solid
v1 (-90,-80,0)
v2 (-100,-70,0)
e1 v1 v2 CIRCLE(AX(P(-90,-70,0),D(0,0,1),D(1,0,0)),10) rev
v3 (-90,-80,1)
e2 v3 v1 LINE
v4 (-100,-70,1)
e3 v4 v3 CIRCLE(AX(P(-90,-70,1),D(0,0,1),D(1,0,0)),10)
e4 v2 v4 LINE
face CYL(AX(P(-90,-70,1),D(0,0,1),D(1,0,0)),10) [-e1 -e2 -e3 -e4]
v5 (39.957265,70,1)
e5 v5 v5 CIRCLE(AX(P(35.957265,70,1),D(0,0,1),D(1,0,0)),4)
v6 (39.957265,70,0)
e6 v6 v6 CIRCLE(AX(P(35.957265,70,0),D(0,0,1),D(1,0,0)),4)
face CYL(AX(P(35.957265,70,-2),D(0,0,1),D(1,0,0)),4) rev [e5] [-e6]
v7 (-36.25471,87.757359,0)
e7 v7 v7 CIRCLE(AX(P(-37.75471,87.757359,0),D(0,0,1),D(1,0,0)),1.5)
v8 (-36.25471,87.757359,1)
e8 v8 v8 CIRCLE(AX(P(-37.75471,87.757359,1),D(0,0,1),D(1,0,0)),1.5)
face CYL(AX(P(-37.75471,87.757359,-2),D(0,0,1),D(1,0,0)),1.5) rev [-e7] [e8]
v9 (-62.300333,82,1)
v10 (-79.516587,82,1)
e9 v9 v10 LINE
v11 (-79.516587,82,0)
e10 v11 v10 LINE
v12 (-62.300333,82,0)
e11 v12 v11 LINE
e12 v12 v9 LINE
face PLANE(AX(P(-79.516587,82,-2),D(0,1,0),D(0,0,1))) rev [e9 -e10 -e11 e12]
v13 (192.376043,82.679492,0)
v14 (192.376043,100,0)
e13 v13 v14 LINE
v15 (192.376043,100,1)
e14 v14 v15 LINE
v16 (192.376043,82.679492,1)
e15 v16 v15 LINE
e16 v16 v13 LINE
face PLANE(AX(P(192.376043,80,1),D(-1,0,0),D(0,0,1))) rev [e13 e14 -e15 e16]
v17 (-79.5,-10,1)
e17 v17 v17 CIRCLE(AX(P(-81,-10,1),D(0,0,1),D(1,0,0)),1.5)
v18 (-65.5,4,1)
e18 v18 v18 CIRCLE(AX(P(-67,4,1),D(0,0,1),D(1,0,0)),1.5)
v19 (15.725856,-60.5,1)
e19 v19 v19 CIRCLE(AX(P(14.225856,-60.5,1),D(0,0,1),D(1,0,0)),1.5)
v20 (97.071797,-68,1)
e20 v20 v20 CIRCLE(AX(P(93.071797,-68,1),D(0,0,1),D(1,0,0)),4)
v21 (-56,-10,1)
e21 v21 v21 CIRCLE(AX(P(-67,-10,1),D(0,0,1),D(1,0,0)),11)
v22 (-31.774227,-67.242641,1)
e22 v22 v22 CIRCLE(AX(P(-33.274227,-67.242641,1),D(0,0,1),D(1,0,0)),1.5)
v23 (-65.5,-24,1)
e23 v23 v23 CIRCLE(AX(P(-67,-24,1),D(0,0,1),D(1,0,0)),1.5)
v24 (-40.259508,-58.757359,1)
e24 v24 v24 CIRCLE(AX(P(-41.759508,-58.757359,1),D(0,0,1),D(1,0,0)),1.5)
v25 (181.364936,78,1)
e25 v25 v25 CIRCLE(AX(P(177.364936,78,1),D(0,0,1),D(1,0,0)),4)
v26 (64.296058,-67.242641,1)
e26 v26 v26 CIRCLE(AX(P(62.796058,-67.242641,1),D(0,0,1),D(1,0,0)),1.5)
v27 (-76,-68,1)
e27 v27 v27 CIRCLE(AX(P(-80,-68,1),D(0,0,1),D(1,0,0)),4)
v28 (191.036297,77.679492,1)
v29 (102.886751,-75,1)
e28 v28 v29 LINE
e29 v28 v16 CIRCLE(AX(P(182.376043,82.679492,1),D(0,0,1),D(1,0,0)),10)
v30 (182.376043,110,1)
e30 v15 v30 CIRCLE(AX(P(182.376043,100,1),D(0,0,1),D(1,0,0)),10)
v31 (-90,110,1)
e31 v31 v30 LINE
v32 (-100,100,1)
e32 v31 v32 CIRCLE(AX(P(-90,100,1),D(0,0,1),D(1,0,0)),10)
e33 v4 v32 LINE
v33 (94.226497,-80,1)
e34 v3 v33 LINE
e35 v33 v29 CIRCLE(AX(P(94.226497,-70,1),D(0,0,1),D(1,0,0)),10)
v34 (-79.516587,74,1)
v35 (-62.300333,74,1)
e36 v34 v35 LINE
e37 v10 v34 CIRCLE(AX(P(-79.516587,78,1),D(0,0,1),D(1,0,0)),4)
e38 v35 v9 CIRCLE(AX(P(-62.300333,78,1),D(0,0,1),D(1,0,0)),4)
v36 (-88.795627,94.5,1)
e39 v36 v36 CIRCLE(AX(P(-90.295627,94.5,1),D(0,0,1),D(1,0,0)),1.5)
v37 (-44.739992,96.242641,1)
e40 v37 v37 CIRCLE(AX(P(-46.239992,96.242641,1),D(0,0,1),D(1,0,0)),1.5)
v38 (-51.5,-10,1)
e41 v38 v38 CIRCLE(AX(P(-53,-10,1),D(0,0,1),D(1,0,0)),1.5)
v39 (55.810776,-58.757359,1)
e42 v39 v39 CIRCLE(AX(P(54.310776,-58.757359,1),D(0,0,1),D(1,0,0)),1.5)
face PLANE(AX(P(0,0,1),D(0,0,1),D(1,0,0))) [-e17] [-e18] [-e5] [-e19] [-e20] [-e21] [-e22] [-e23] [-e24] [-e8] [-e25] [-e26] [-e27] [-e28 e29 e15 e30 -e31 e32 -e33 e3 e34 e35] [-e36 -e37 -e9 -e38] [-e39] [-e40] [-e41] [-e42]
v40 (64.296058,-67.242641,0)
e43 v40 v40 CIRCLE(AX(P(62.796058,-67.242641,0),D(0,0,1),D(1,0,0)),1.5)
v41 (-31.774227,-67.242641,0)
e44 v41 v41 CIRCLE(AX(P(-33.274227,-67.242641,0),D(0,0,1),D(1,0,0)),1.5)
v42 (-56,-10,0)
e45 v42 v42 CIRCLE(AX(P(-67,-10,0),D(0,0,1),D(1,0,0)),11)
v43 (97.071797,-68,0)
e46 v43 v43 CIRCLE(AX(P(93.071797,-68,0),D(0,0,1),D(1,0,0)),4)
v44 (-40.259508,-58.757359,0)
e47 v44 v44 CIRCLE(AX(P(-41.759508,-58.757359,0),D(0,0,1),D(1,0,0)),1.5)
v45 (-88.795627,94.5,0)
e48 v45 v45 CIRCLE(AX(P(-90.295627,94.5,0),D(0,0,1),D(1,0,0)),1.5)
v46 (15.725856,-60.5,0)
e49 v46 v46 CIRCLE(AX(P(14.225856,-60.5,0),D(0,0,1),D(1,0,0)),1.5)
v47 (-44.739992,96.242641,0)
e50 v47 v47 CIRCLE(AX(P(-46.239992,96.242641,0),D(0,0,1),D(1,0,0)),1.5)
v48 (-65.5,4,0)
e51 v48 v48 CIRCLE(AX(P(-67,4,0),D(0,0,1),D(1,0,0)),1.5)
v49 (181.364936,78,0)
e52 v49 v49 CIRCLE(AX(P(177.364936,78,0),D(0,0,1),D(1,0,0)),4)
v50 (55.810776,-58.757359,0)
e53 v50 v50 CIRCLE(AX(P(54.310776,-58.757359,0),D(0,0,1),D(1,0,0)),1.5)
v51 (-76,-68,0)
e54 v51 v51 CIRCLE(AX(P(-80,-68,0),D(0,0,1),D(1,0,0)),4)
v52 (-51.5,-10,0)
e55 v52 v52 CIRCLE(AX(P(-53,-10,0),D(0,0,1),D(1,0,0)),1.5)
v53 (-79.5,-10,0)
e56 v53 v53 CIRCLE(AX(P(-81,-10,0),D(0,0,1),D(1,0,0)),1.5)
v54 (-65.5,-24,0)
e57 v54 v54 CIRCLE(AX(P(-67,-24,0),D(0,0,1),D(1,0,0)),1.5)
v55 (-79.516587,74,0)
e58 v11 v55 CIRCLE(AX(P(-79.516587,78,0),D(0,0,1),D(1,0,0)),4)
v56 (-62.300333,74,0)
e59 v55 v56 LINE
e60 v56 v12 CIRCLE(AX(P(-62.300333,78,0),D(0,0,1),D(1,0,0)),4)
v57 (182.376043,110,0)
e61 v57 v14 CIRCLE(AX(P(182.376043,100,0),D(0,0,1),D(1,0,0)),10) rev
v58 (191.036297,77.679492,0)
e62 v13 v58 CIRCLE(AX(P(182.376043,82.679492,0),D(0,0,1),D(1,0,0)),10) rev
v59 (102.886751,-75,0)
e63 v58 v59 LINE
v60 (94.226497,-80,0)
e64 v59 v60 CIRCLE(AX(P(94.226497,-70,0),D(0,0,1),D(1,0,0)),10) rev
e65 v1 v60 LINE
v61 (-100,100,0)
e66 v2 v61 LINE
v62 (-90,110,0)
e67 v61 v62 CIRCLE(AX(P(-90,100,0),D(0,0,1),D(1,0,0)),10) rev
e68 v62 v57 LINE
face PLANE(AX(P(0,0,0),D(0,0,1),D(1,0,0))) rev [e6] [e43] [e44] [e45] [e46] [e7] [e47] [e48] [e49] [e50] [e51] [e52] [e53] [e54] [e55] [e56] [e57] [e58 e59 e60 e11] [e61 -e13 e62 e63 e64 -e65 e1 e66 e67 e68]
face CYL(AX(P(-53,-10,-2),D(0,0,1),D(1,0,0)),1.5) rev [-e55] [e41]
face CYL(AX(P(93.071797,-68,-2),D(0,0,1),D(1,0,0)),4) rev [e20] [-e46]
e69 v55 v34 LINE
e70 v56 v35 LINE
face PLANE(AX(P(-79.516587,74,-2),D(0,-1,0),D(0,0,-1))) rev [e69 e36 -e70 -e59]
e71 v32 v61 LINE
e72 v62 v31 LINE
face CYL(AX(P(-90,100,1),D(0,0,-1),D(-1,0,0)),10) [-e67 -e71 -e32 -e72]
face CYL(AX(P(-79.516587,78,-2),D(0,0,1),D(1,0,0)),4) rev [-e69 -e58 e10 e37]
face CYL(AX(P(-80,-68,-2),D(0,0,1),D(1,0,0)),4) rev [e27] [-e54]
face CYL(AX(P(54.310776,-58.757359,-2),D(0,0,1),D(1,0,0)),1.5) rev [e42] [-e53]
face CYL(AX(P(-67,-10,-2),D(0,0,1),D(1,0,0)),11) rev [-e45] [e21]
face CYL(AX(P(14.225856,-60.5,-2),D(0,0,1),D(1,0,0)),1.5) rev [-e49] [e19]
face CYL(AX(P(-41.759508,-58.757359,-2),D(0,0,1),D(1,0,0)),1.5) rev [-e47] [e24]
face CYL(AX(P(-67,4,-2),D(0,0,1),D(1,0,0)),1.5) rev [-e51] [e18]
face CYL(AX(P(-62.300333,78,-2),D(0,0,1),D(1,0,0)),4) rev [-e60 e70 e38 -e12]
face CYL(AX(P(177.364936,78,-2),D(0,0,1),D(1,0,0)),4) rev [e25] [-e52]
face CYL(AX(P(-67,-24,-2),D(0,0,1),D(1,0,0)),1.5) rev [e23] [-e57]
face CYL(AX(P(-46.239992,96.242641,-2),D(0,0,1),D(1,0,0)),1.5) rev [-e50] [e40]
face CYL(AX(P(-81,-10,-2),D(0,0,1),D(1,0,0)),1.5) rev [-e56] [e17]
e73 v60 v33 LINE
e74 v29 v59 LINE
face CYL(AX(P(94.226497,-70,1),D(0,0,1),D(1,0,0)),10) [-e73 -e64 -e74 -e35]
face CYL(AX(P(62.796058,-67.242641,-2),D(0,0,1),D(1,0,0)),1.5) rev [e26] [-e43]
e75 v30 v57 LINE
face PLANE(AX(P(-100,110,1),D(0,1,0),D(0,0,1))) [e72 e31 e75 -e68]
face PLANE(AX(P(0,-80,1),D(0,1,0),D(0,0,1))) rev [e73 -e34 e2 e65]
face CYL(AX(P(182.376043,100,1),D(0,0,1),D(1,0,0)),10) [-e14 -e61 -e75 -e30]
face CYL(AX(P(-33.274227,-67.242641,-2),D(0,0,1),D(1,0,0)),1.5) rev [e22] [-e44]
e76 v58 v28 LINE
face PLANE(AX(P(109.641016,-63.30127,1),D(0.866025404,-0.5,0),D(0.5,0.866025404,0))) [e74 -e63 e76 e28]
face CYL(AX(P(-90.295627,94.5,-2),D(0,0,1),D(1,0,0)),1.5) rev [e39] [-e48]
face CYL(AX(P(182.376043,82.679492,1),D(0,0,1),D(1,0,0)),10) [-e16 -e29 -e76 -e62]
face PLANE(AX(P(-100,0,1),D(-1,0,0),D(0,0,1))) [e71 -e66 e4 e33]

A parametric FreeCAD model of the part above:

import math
import FreeCAD as App
import Part
import Sketcher
Q = App.Units.Quantity


def edges_at(feature, points):
    """Names of the edges that pass closest to the given points."""
    edges = feature.Shape.Edges
    near = lambda p: min(range(len(edges)), key=lambda i: edges[i].distToShape(Part.Vertex(*p))[0])
    return sorted({f"Edge{near(p) + 1}" for p in points})

doc = App.newDocument("Part")
body = doc.addObject("PartDesign::Body", "Body")

# Sketch on XY plane
sketch1 = doc.addObject("Sketcher::SketchObject", "Sketch")
body.addObject(sketch1)
sketch1.AttachmentSupport = (doc.XY_Plane, [""])
sketch1.MapMode = "FlatFace"
sketch1.addGeometry([
    Part.LineSegment(App.Vector(-100, -80, 0), App.Vector(100, -80, 0)),  # 0
    Part.LineSegment(App.Vector(100, -80, 0), App.Vector(192, 80, 0)),  # 1
    Part.LineSegment(App.Vector(192, 80, 0), App.Vector(192, 110, 0)),  # 2
    Part.LineSegment(App.Vector(192, 110, 0), App.Vector(-100, 110, 0)),  # 3
    Part.LineSegment(App.Vector(-100, 110, 0), App.Vector(-100, -80, 0)),  # 4
], False)
sketch1.addConstraint([
    Sketcher.Constraint("Coincident", 0, 2, 1, 1),
    Sketcher.Constraint("Coincident", 1, 2, 2, 1),
    Sketcher.Constraint("Coincident", 2, 2, 3, 1),
    Sketcher.Constraint("Coincident", 3, 2, 4, 1),
    Sketcher.Constraint("Coincident", 4, 2, 0, 1),
    Sketcher.Constraint("Horizontal", 0),
    Sketcher.Constraint("Vertical", 2),
    Sketcher.Constraint("Horizontal", 3),
    Sketcher.Constraint("Vertical", 4),
    Sketcher.Constraint("DistanceX", 0, 1, 0, 2, Q("200 mm")),
    Sketcher.Constraint("DistanceY", 2, 1, 2, 2, Q("30 mm")),
    Sketcher.Constraint("DistanceY", 4, 2, 4, 1, Q("190 mm")),
    Sketcher.Constraint("Angle", 1, Q("60 deg")),
    Sketcher.Constraint("DistanceX", -1, 1, 0, 2, Q("100 mm")),
    Sketcher.Constraint("DistanceY", 0, 2, -1, 1, Q("80 mm")),
])
pad1 = doc.addObject("PartDesign::Pad", "Pad")
body.addObject(pad1)
pad1.Profile = sketch1
pad1.Length = 1
doc.recompute()

fillet = doc.addObject("PartDesign::Fillet", "Fillet")
body.addObject(fillet)
fillet.Base = (pad1, edges_at(pad1, [
    (-100, 110, 0.5),
    (192.376, 110, 0.5),
    (-100, -80, 0.5),
    (192.376, 80, 0.5),
    (100, -80, 0.5),
]))
fillet.Radius = 10

# Sketch on XY plane
sketch2 = doc.addObject("Sketcher::SketchObject", "Sketch001")
body.addObject(sketch2)
sketch2.AttachmentSupport = (doc.XY_Plane, [""])
sketch2.MapMode = "FlatFace"
sketch2.AttachmentOffset = App.Placement(App.Vector(0, 0, 1), App.Rotation())
sketch2.addGeometry([
    Part.Circle(App.Vector(93.1, -68, 0), App.Vector(0, 0, 1), 4),  # 0
    Part.Circle(App.Vector(177.4, 78, 0), App.Vector(0, 0, 1), 4),  # 1
    Part.Circle(App.Vector(-67, -10, 0), App.Vector(0, 0, 1), 11),  # 2
    Part.Circle(App.Vector(-80, -68, 0), App.Vector(0, 0, 1), 4),  # 3
    Part.Circle(App.Vector(-53, -10, 0), App.Vector(0, 0, 1), 1.5),  # 4
    Part.Circle(App.Vector(-67, 4, 0), App.Vector(0, 0, 1), 1.5),  # 5
    Part.Circle(App.Vector(-81, -10, 0), App.Vector(0, 0, 1), 1.5),  # 6
    Part.Circle(App.Vector(-67, -24, 0), App.Vector(0, 0, 1), 1.5),  # 7
    Part.Circle(App.Vector(36, 70, 0), App.Vector(0, 0, 1), 4),  # 8
    Part.Circle(App.Vector(62.8, -67.2, 0), App.Vector(0, 0, 1), 1.5),  # 9
    Part.Circle(App.Vector(54.3, -58.8, 0), App.Vector(0, 0, 1), 1.5),  # 10
    Part.Circle(App.Vector(-33.3, -67.2, 0), App.Vector(0, 0, 1), 1.5),  # 11
    Part.Circle(App.Vector(-41.8, -58.8, 0), App.Vector(0, 0, 1), 1.5),  # 12
    Part.Circle(App.Vector(14.2, -60.5, 0), App.Vector(0, 0, 1), 1.5),  # 13
    Part.Circle(App.Vector(-37.8, 87.8, 0), App.Vector(0, 0, 1), 1.5),  # 14
    Part.Circle(App.Vector(-46.2, 96.2, 0), App.Vector(0, 0, 1), 1.5),  # 15
    Part.Circle(App.Vector(-90.3, 94.5, 0), App.Vector(0, 0, 1), 1.5),  # 16
    Part.LineSegment(App.Vector(-62.3, 82, 0), App.Vector(-79.5, 82, 0)),  # 17
    Part.ArcOfCircle(Part.Circle(App.Vector(-79.5, 78, 0), App.Vector(0, 0, 1), 4), math.radians(90), math.radians(270)),  # 18
    Part.LineSegment(App.Vector(-79.5, 74, 0), App.Vector(-62.3, 74, 0)),  # 19
    Part.ArcOfCircle(Part.Circle(App.Vector(-62.3, 78, 0), App.Vector(0, 0, 1), 4), math.radians(-90), math.radians(90)),  # 20
], False)
sketch2.addConstraint([
    Sketcher.Constraint("Tangent", 17, 2, 18, 1),
    Sketcher.Constraint("Tangent", 18, 2, 19, 1),
    Sketcher.Constraint("Tangent", 19, 2, 20, 1),
    Sketcher.Constraint("Tangent", 20, 2, 17, 1),
    Sketcher.Constraint("Horizontal", 17),
    Sketcher.Constraint("Horizontal", 19),
    Sketcher.Constraint("Equal", 0, 1),
    Sketcher.Constraint("Equal", 1, 3),
    Sketcher.Constraint("Equal", 4, 5),
    Sketcher.Constraint("Equal", 5, 6),
    Sketcher.Constraint("Equal", 6, 7),
    Sketcher.Constraint("Equal", 3, 8),
    Sketcher.Constraint("Equal", 7, 9),
    Sketcher.Constraint("Equal", 9, 10),
    Sketcher.Constraint("Equal", 10, 11),
    Sketcher.Constraint("Equal", 11, 12),
    Sketcher.Constraint("Equal", 12, 13),
    Sketcher.Constraint("Equal", 13, 14),
    Sketcher.Constraint("Equal", 14, 15),
    Sketcher.Constraint("Equal", 15, 16),
    Sketcher.Constraint("Equal", 8, 18),
    Sketcher.Constraint("Horizontal", 0, 3, 3, 3),
    Sketcher.Constraint("Horizontal", 2, 3, 4, 3),
    Sketcher.Constraint("Horizontal", 4, 3, 6, 3),
    Sketcher.Constraint("Horizontal", 9, 3, 11, 3),
    Sketcher.Constraint("Horizontal", 10, 3, 12, 3),
    Sketcher.Constraint("Horizontal", 1, 3, 18, 3),
    Sketcher.Constraint("Vertical", 2, 3, 5, 3),
    Sketcher.Constraint("Vertical", 5, 3, 7, 3),
    Sketcher.Constraint("Diameter", 0, Q("8 mm")),
    Sketcher.Constraint("Diameter", 2, Q("22 mm")),
    Sketcher.Constraint("Diameter", 4, Q("3 mm")),
    Sketcher.Constraint("DistanceY", 0, 3, -1, 1, Q("68 mm")),
    Sketcher.Constraint("DistanceY", -1, 1, 1, 3, Q("78 mm")),
    Sketcher.Constraint("DistanceX", 2, 3, -1, 1, Q("67 mm")),
    Sketcher.Constraint("DistanceY", 2, 3, -1, 1, Q("10 mm")),
    Sketcher.Constraint("DistanceX", 3, 3, -1, 1, Q("80 mm")),
    Sketcher.Constraint("DistanceX", 4, 3, -1, 1, Q("53 mm")),
    Sketcher.Constraint("DistanceY", -1, 1, 5, 3, Q("4 mm")),
    Sketcher.Constraint("DistanceX", 6, 3, -1, 1, Q("81 mm")),
    Sketcher.Constraint("DistanceY", 7, 3, -1, 1, Q("24 mm")),
    Sketcher.Constraint("DistanceY", -1, 1, 8, 3, Q("70 mm")),
    Sketcher.Constraint("DistanceY", 13, 3, -1, 1, Q("60.5 mm")),
    Sketcher.Constraint("DistanceY", -1, 1, 16, 3, Q("94.5 mm")),
    Sketcher.Constraint("DistanceX", 13, 3, 9, 3, Q("48.570202 mm")),
    Sketcher.Constraint("DistanceX", 17, 2, 17, 1, Q("17.216253 mm")),
    Sketcher.Constraint("DistanceY", 9, 3, -1, 1, Q("67.242641 mm")),
    Sketcher.Constraint("DistanceY", 10, 3, -1, 1, Q("58.757359 mm")),
    Sketcher.Constraint("DistanceX", 12, 3, -1, 1, Q("41.759508 mm")),
    Sketcher.Constraint("DistanceX", 14, 3, -1, 1, Q("37.75471 mm")),
    Sketcher.Constraint("DistanceY", -1, 1, 14, 3, Q("87.757359 mm")),
    Sketcher.Constraint("DistanceX", 15, 3, -1, 1, Q("46.239992 mm")),
    Sketcher.Constraint("DistanceY", -1, 1, 15, 3, Q("96.242641 mm")),
    Sketcher.Constraint("DistanceX", 0, 3, 1, 3, Q("84.293139 mm")),
    Sketcher.Constraint("DistanceX", 8, 3, 1, 3, Q("141.407671 mm")),
    Sketcher.Constraint("DistanceX", 9, 3, 0, 3, Q("30.275739 mm")),
    Sketcher.Constraint("DistanceX", 10, 3, 9, 3, Q("8.485281 mm")),
    Sketcher.Constraint("DistanceX", 12, 3, 11, 3, Q("8.485281 mm")),
    Sketcher.Constraint("DistanceX", 16, 3, 18, 3, Q("10.77904 mm")),
    Sketcher.Constraint("DistanceX", 20, 3, 15, 3, Q("16.060342 mm")),
    Sketcher.Constraint("DistanceX", -1, 1, 0, 3, Q("93.071797 mm")),
])
pocket1 = doc.addObject("PartDesign::Pocket", "Pocket")
body.addObject(pocket1)
pocket1.Profile = sketch2
pocket1.Length = 3

doc.recompute()
